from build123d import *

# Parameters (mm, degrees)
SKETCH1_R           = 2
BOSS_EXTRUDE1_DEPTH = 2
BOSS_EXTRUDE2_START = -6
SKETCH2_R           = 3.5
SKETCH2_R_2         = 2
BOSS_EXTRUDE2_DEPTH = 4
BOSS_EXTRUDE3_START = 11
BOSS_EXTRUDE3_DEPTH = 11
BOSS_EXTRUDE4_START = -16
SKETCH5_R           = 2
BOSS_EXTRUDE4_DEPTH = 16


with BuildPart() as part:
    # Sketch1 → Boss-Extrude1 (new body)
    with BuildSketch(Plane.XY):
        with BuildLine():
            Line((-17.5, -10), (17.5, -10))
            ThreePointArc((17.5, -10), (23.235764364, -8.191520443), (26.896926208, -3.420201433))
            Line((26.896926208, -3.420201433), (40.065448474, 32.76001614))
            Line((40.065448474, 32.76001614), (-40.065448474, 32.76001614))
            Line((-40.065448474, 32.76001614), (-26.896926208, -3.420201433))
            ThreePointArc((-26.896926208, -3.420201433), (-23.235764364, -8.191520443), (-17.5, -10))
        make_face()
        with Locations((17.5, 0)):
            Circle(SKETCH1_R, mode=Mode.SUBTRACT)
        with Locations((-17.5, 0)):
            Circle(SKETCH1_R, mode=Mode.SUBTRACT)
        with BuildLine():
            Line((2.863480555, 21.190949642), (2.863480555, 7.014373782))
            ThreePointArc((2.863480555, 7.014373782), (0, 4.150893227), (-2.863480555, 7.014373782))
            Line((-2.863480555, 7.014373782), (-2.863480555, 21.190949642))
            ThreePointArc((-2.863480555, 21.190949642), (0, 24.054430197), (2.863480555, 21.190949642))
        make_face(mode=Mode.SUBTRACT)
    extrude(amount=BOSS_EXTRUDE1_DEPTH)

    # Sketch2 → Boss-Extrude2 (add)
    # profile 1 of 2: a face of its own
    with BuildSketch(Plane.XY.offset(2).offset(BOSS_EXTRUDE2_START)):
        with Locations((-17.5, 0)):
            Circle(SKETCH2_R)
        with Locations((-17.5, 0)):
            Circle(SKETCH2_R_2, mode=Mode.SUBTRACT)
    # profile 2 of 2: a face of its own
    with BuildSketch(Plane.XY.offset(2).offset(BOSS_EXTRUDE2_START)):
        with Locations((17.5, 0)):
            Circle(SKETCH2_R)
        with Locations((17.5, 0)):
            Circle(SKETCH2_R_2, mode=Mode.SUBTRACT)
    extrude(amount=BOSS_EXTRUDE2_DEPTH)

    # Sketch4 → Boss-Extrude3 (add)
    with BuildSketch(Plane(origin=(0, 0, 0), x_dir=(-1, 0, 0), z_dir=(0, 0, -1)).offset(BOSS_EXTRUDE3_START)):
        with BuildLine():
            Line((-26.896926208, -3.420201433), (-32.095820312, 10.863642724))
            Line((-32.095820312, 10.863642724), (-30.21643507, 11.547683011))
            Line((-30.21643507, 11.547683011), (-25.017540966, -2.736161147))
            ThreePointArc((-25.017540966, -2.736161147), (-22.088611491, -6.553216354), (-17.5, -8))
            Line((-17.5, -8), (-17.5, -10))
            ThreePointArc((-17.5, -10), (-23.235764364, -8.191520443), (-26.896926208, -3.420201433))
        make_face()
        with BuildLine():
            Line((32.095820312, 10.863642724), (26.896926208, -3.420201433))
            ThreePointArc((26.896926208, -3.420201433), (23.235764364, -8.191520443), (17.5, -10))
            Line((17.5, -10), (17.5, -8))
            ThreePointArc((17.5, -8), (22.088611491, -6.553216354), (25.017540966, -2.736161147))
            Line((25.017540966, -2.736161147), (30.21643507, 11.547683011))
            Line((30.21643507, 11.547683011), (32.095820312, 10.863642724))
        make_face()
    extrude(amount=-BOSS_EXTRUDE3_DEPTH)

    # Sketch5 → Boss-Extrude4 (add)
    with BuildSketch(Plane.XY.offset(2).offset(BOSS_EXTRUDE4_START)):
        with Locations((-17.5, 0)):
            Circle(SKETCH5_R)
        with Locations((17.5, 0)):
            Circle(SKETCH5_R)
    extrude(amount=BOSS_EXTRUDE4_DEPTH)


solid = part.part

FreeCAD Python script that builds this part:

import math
import FreeCAD as App
import Part
import Sketcher

V = App.Vector
Q = App.Units.Quantity

doc = App.newDocument("Part")
params = doc.addObject("Spreadsheet::Sheet", "Params")
for row, (alias, value) in enumerate([
    ("sketch1_diameter", "4 mm"),
    ("sketch1_radius", "10 mm"),
    ("sketch1_width", "35 mm"),
    ("pad1_length", "2 mm"),
    ("sketch2_diameter", "7 mm"),
    ("sketch2_diameter2", "4 mm"),
    ("pad2_length", "4 mm"),
    ("sketch3_radius", "10 mm"),
    ("sketch3_radius2", "8 mm"),
    ("pad3_length", "11 mm"),
    ("sketch4_diameter", "4 mm"),
    ("pad4_length", "16 mm"),
], start=1):
    params.set(f"A{row}", alias)
    params.set(f"B{row}", "=" + value)
    params.setAlias(f"B{row}", alias)

body = doc.addObject("PartDesign::Body", "Body")

# Sketch on XY plane
sketch1 = body.newObject("Sketcher::SketchObject", "Sketch")
sketch1.AttachmentSupport = (doc.getObject("XY_Plane"), [""])
sketch1.MapMode = "FlatFace"
sketch1.addGeometry([
    Part.LineSegment(V(-17.5, -10, 0), V(17.5, -10, 0)),  # 0
    Part.ArcOfCircle(Part.Circle(V(17.5, 0, 0), V(0, 0, 1), 10), math.radians(-90), math.radians(-20)),  # 1
    Part.LineSegment(V(26.896926, -3.420201, 0), V(40.065448, 32.760016, 0)),  # 2
    Part.LineSegment(V(40.065448, 32.760016, 0), V(-40.065448, 32.760016, 0)),  # 3
    Part.LineSegment(V(-40.065448, 32.760016, 0), V(-26.896926, -3.420201, 0)),  # 4
    Part.ArcOfCircle(Part.Circle(V(-17.5, 0, 0), V(0, 0, 1), 10), math.radians(-160), math.radians(-90)),  # 5
    Part.Circle(V(-17.5, 0, 0), V(0, 0, 1), 2),  # 6
    Part.Circle(V(17.5, 0, 0), V(0, 0, 1), 2),  # 7
    Part.ArcOfCircle(Part.Circle(V(0, 21.19095, 0), V(0, 0, 1), 2.863481), math.radians(0), math.radians(180)),  # 8
    Part.LineSegment(V(2.863481, 21.19095, 0), V(2.863481, 7.014374, 0)),  # 9
    Part.ArcOfCircle(Part.Circle(V(0, 7.014374, 0), V(0, 0, 1), 2.863481), math.radians(180), math.radians(360)),  # 10
    Part.LineSegment(V(-2.863481, 7.014374, 0), V(-2.863481, 21.19095, 0)),  # 11
], False)
sketch1.addConstraint([
    Sketcher.Constraint("Tangent", 0, 2, 1, 1),
    Sketcher.Constraint("Tangent", 1, 2, 2, 1),
    Sketcher.Constraint("Coincident", 2, 2, 3, 1),
    Sketcher.Constraint("Coincident", 3, 2, 4, 1),
    Sketcher.Constraint("Tangent", 4, 2, 5, 1),
    Sketcher.Constraint("Tangent", 5, 2, 0, 1),
    Sketcher.Constraint("Tangent", 8, 1, 9, 1),
    Sketcher.Constraint("Tangent", 9, 2, 10, 2),
    Sketcher.Constraint("Tangent", 10, 1, 11, 1),
    Sketcher.Constraint("Tangent", 11, 2, 8, 2),
    Sketcher.Constraint("Horizontal", 0),
    Sketcher.Constraint("Horizontal", 3),
    Sketcher.Constraint("Vertical", 9),
    Sketcher.Constraint("Vertical", 11),
    Sketcher.Constraint("Coincident", 6, 3, 5, 3),
    Sketcher.Constraint("Coincident", 7, 3, 1, 3),
    Sketcher.Constraint("Equal", 1, 5),
    Sketcher.Constraint("Equal", 6, 7),
    Sketcher.Constraint("Symmetric", 1, 3, 5, 3, -1, 1),
    Sketcher.Constraint("PointOnObject", 8, 3, -2),
    Sketcher.Constraint("Horizontal", 1, 2, 4, 2),
    Sketcher.Constraint("Diameter", 6, Q("4 mm")),
    Sketcher.Constraint("Radius", 1, Q("10 mm")),
    Sketcher.Constraint("DistanceX", 0, 1, 0, 2, Q("35 mm")),
    Sketcher.Constraint("Angle", 2, Q("70 deg")),
    Sketcher.Constraint("Radius", 8, Q("2.863481 mm")),
    Sketcher.Constraint("DistanceX", 3, 2, 3, 1, Q("80.130897 mm")),
    Sketcher.Constraint("DistanceY", 9, 2, 9, 1, Q("14.176576 mm")),
    Sketcher.Constraint("DistanceY", -1, 1, 8, 3, Q("21.19095 mm")),
])
sketch1.setExpression("Constraints[21]", "Params.sketch1_diameter")
sketch1.setExpression("Constraints[22]", "Params.sketch1_radius")
sketch1.setExpression("Constraints[23]", "Params.sketch1_width")
pad1 = body.newObject("PartDesign::Pad", "Pad")
pad1.Profile = sketch1
pad1.setExpression("Length", "Params.pad1_length")

# Sketch on XY plane
sketch2 = body.newObject("Sketcher::SketchObject", "Sketch001")
sketch2.AttachmentSupport = (doc.getObject("XY_Plane"), [""])
sketch2.MapMode = "FlatFace"
sketch2.AttachmentOffset = App.Placement(V(0, 0, -4), App.Rotation())
sketch2.addGeometry([
    Part.Circle(V(-17.5, 0, 0), V(0, 0, 1), 3.5),
    Part.Circle(V(-17.5, 0, 0), V(0, 0, 1), 2),
    Part.Circle(V(17.5, 0, 0), V(0, 0, 1), 3.5),
    Part.Circle(V(17.5, 0, 0), V(0, 0, 1), 2),
], False)
sketch2.addConstraint([
    Sketcher.Constraint("Coincident", 1, 3, 0, 3),
    Sketcher.Constraint("Coincident", 3, 3, 2, 3),
    Sketcher.Constraint("Equal", 0, 2),
    Sketcher.Constraint("Equal", 1, 3),
    Sketcher.Constraint("Symmetric", 0, 3, 2, 3, -1, 1),
    Sketcher.Constraint("PointOnObject", 0, 3, -1),
    Sketcher.Constraint("Diameter", 0, Q("7 mm")),
    Sketcher.Constraint("Diameter", 1, Q("4 mm")),
    Sketcher.Constraint("DistanceX", 0, 3, 2, 3, Q("35 mm")),
])
sketch2.setExpression("Constraints[6]", "Params.sketch2_diameter")
sketch2.setExpression("Constraints[7]", "Params.sketch2_diameter2")
pad2 = body.newObject("PartDesign::Pad", "Pad001")
pad2.Profile = sketch2
pad2.setExpression("Length", "Params.pad2_length")

# Sketch on XY plane
sketch3 = body.newObject("Sketcher::SketchObject", "Sketch002")
sketch3.AttachmentSupport = (doc.getObject("XY_Plane"), [""])
sketch3.MapMode = "FlatFace"
sketch3.AttachmentOffset = App.Placement(V(0, 0, -11), App.Rotation())
sketch3.addGeometry([
    Part.LineSegment(V(32.09582, 10.863643, 0), V(26.896926, -3.420201, 0)),  # 0
    Part.ArcOfCircle(Part.Circle(V(17.5, 0, 0), V(0, 0, 1), 10), math.radians(-90), math.radians(-20)),  # 1
    Part.LineSegment(V(17.5, -10, 0), V(17.5, -8, 0)),  # 2
    Part.ArcOfCircle(Part.Circle(V(17.5, 0, 0), V(0, 0, 1), 8), math.radians(-90), math.radians(-20)),  # 3
    Part.LineSegment(V(25.017541, -2.736161, 0), V(30.216435, 11.547683, 0)),  # 4
    Part.LineSegment(V(30.216435, 11.547683, 0), V(32.09582, 10.863643, 0)),  # 5
    Part.LineSegment(V(-26.896926, -3.420201, 0), V(-32.09582, 10.863643, 0)),  # 6
    Part.LineSegment(V(-32.09582, 10.863643, 0), V(-30.216435, 11.547683, 0)),  # 7
    Part.LineSegment(V(-30.216435, 11.547683, 0), V(-25.017541, -2.736161, 0)),  # 8
    Part.ArcOfCircle(Part.Circle(V(-17.5, 0, 0), V(0, 0, 1), 8), math.radians(-160), math.radians(-90)),  # 9
    Part.LineSegment(V(-17.5, -8, 0), V(-17.5, -10, 0)),  # 10
    Part.ArcOfCircle(Part.Circle(V(-17.5, 0, 0), V(0, 0, 1), 10), math.radians(-160), math.radians(-90)),  # 11
], False)
sketch3.addConstraint([
    Sketcher.Constraint("Tangent", 0, 2, 1, 2),
    Sketcher.Constraint("Coincident", 1, 1, 2, 1),
    Sketcher.Constraint("Coincident", 2, 2, 3, 1),
    Sketcher.Constraint("Tangent", 3, 2, 4, 1),
    Sketcher.Constraint("Coincident", 4, 2, 5, 1),
    Sketcher.Constraint("Coincident", 5, 2, 0, 1),
    Sketcher.Constraint("Coincident", 6, 2, 7, 1),
    Sketcher.Constraint("Coincident", 7, 2, 8, 1),
    Sketcher.Constraint("Tangent", 8, 2, 9, 1),
    Sketcher.Constraint("Coincident", 9, 2, 10, 1),
    Sketcher.Constraint("Coincident", 10, 2, 11, 2),
    Sketcher.Constraint("Tangent", 11, 1, 6, 1),
    Sketcher.Constraint("Vertical", 2),
    Sketcher.Constraint("Vertical", 10),
    Sketcher.Constraint("Coincident", 3, 3, 1, 3),
    Sketcher.Constraint("Coincident", 11, 3, 9, 3),
    Sketcher.Constraint("Equal", 3, 9),
    Sketcher.Constraint("Equal", 1, 11),
    Sketcher.Constraint("Symmetric", 1, 3, 9, 3, -1, 1),
    Sketcher.Constraint("Symmetric", 5, 2, 6, 2, -2),
    Sketcher.Constraint("Symmetric", 4, 2, 7, 2, -2),
    Sketcher.Constraint("Symmetric", 2, 2, 9, 2, -2),
    Sketcher.Constraint("Parallel", 0, 4),
    Sketcher.Constraint("Perpendicular", 4, 5),
    Sketcher.Constraint("Vertical", 3, 3, 1, 1),
    Sketcher.Constraint("Radius", 1, Q("10 mm")),
    Sketcher.Constraint("Radius", 3, Q("8 mm")),
    Sketcher.Constraint("Angle", 0, Q("-110 deg")),
    Sketcher.Constraint("DistanceX", 9, 3, 3, 3, Q("35 mm")),
    Sketcher.Constraint("Distance", 0, Q("15.200549 mm")),
])
sketch3.setExpression("Constraints[25]", "Params.sketch3_radius")
sketch3.setExpression("Constraints[26]", "Params.sketch3_radius2")
pad3 = body.newObject("PartDesign::Pad", "Pad002")
pad3.Profile = sketch3
pad3.setExpression("Length", "Params.pad3_length")

# Sketch on XY plane
sketch4 = body.newObject("Sketcher::SketchObject", "Sketch003")
sketch4.AttachmentSupport = (doc.getObject("XY_Plane"), [""])
sketch4.MapMode = "FlatFace"
sketch4.AttachmentOffset = App.Placement(V(0, 0, -14), App.Rotation())
sketch4.addGeometry([
    Part.Circle(V(-17.5, 0, 0), V(0, 0, 1), 2),
    Part.Circle(V(17.5, 0, 0), V(0, 0, 1), 2),
], False)
sketch4.addConstraint([
    Sketcher.Constraint("Equal", 0, 1),
    Sketcher.Constraint("Symmetric", 0, 3, 1, 3, -1, 1),
    Sketcher.Constraint("PointOnObject", 0, 3, -1),
    Sketcher.Constraint("Diameter", 0, Q("4 mm")),
    Sketcher.Constraint("DistanceX", 0, 3, 1, 3, Q("35 mm")),
])
sketch4.setExpression("Constraints[3]", "Params.sketch4_diameter")
pad4 = body.newObject("PartDesign::Pad", "Pad003")
pad4.Profile = sketch4
pad4.setExpression("Length", "Params.pad4_length")

doc.recompute()
